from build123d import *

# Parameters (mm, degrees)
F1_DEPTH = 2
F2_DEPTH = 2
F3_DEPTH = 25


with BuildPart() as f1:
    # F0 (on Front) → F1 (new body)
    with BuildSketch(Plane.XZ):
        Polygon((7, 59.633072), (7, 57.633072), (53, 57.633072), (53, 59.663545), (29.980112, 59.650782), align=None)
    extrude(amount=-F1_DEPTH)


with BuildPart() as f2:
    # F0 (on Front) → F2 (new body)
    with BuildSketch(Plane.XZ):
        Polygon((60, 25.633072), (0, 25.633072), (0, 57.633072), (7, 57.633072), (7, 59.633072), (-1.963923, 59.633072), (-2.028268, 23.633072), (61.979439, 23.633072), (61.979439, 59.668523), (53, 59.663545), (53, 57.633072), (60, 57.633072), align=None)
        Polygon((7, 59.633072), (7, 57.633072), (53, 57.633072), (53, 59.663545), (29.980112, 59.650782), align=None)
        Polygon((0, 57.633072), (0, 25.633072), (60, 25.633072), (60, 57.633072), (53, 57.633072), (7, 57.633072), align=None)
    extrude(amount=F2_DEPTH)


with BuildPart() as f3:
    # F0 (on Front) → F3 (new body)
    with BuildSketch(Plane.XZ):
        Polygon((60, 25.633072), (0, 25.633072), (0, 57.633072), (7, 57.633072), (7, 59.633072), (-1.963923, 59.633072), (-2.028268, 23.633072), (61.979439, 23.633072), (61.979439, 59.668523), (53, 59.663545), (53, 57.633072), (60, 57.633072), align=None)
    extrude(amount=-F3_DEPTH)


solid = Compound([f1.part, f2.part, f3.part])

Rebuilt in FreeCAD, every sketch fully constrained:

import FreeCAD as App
import Part
import Sketcher

V = App.Vector
Q = App.Units.Quantity

doc = App.newDocument("Part")
body = doc.addObject("PartDesign::Body", "Body")

sketch1 = doc.addObject("Sketcher::SketchObject", "Sketch")
body.addObject(sketch1)
sketch1.AttachmentSupport = (doc.XZ_Plane, [""])
sketch1.MapMode = "FlatFace"
sketch1.addGeometry([
    Part.LineSegment(V(7, 59.6, 0), V(7, 57.6, 0)),
    Part.LineSegment(V(7, 57.6, 0), V(53, 57.6, 0)),
    Part.LineSegment(V(53, 57.6, 0), V(53, 59.7, 0)),
    Part.LineSegment(V(53, 59.7, 0), V(30, 59.7, 0)),
    Part.LineSegment(V(30, 59.7, 0), V(7, 59.6, 0)),
], False)
sketch1.addConstraint([
    Sketcher.Constraint("Coincident", 0, 2, 1, 1),
    Sketcher.Constraint("Coincident", 1, 2, 2, 1),
    Sketcher.Constraint("Coincident", 2, 2, 3, 1),
    Sketcher.Constraint("Coincident", 3, 2, 4, 1),
    Sketcher.Constraint("Coincident", 4, 2, 0, 1),
    Sketcher.Constraint("Vertical", 0),
    Sketcher.Constraint("Horizontal", 1),
    Sketcher.Constraint("Vertical", 2),
    Sketcher.Constraint("DistanceX", 1, 1, 1, 2, Q("46 mm")),
    Sketcher.Constraint("DistanceY", 0, 2, 0, 1, Q("2 mm")),
    Sketcher.Constraint("DistanceX", -1, 1, 0, 2, Q("7 mm")),
    Sketcher.Constraint("Distance", 3, Q("23.019892 mm")),
    Sketcher.Constraint("DistanceY", 2, 1, 2, 2, Q("2.030473 mm")),
    Sketcher.Constraint("DistanceY", 0, 2, 3, 2, Q("2.01771 mm")),
    Sketcher.Constraint("DistanceY", -1, 1, 0, 2, Q("57.633072 mm")),
])
pad1 = doc.addObject("PartDesign::Pad", "Pad")
body.addObject(pad1)
pad1.Profile = sketch1
pad1.Length = 2
pad1.Reversed = True
body2 = doc.addObject("PartDesign::Body", "Body001")

sketch2 = doc.addObject("Sketcher::SketchObject", "Sketch001")
body2.addObject(sketch2)
sketch2.AttachmentSupport = (doc.getObject("XZ_Plane001"), [""])
sketch2.MapMode = "FlatFace"
sketch2.addGeometry([
    Part.LineSegment(V(7, 60, 0), V(-2, 60, 0)),
    Part.LineSegment(V(-2, 60, 0), V(-2, 24, 0)),
    Part.LineSegment(V(-2, 24, 0), V(62, 24, 0)),
    Part.LineSegment(V(62, 24, 0), V(62, 60, 0)),
    Part.LineSegment(V(62, 60, 0), V(53, 60, 0)),
    Part.LineSegment(V(53, 60, 0), V(30, 60, 0)),
    Part.LineSegment(V(30, 60, 0), V(7, 60, 0)),
], False)
sketch2.addConstraint([
    Sketcher.Constraint("Coincident", 0, 2, 1, 1),
    Sketcher.Constraint("Coincident", 1, 2, 2, 1),
    Sketcher.Constraint("Coincident", 2, 2, 3, 1),
    Sketcher.Constraint("Coincident", 3, 2, 4, 1),
    Sketcher.Constraint("Coincident", 4, 2, 5, 1),
    Sketcher.Constraint("Coincident", 5, 2, 6, 1),
    Sketcher.Constraint("Coincident", 6, 2, 0, 1),
    Sketcher.Constraint("Horizontal", 0),
    Sketcher.Constraint("Horizontal", 2),
    Sketcher.Constraint("Vertical", 3),
    Sketcher.Constraint("Parallel", 4, 5),
    Sketcher.Constraint("DistanceX", -1, 1, 4, 2, Q("53 mm")),
    Sketcher.Constraint("DistanceX", -1, 1, 6, 2, Q("7 mm")),
    Sketcher.Constraint("DistanceY", 1, 2, 0, 2, Q("36 mm")),
    Sketcher.Constraint("DistanceY", 3, 1, 3, 2, Q("36.035451 mm")),
    Sketcher.Constraint("Distance", 4, Q("8.97944 mm")),
    Sketcher.Constraint("Distance", 5, Q("23.019892 mm")),
    Sketcher.Constraint("DistanceX", 0, 2, 0, 1, Q("8.963923 mm")),
    Sketcher.Constraint("DistanceX", 2, 1, 2, 2, Q("64.007707 mm")),
    Sketcher.Constraint("DistanceY", -1, 1, 1, 2, Q("23.633072 mm")),
    Sketcher.Constraint("DistanceY", 4, 2, 3, 2, Q("0.004978 mm")),
])
pad2 = doc.addObject("PartDesign::Pad", "Pad001")
body2.addObject(pad2)
pad2.Profile = sketch2
pad2.Length = 2
body3 = doc.addObject("PartDesign::Body", "Body002")

sketch3 = doc.addObject("Sketcher::SketchObject", "Sketch002")
body3.addObject(sketch3)
sketch3.AttachmentSupport = (doc.getObject("XZ_Plane002"), [""])
sketch3.MapMode = "FlatFace"
sketch3.addGeometry([
    Part.LineSegment(V(60, 25.6, 0), V(0, 25.6, 0)),
    Part.LineSegment(V(0, 25.6, 0), V(0, 57.6, 0)),
    Part.LineSegment(V(0, 57.6, 0), V(7, 57.6, 0)),
    Part.LineSegment(V(7, 57.6, 0), V(7, 59.6, 0)),
    Part.LineSegment(V(7, 59.6, 0), V(-2, 59.6, 0)),
    Part.LineSegment(V(-2, 59.6, 0), V(-2, 23.6, 0)),
    Part.LineSegment(V(-2, 23.6, 0), V(62, 23.6, 0)),
    Part.LineSegment(V(62, 23.6, 0), V(62, 59.7, 0)),
    Part.LineSegment(V(62, 59.7, 0), V(53, 59.7, 0)),
    Part.LineSegment(V(53, 59.7, 0), V(53, 57.6, 0)),
    Part.LineSegment(V(53, 57.6, 0), V(60, 57.6, 0)),
    Part.LineSegment(V(60, 57.6, 0), V(60, 25.6, 0)),
], False)
sketch3.addConstraint([
    Sketcher.Constraint("Coincident", 0, 2, 1, 1),
    Sketcher.Constraint("Coincident", 1, 2, 2, 1),
    Sketcher.Constraint("Coincident", 2, 2, 3, 1),
    Sketcher.Constraint("Coincident", 3, 2, 4, 1),
    Sketcher.Constraint("Coincident", 4, 2, 5, 1),
    Sketcher.Constraint("Coincident", 5, 2, 6, 1),
    Sketcher.Constraint("Coincident", 6, 2, 7, 1),
    Sketcher.Constraint("Coincident", 7, 2, 8, 1),
    Sketcher.Constraint("Coincident", 8, 2, 9, 1),
    Sketcher.Constraint("Coincident", 9, 2, 10, 1),
    Sketcher.Constraint("Coincident", 10, 2, 11, 1),
    Sketcher.Constraint("Coincident", 11, 2, 0, 1),
    Sketcher.Constraint("Horizontal", 0),
    Sketcher.Constraint("Vertical", 1),
    Sketcher.Constraint("Horizontal", 2),
    Sketcher.Constraint("Vertical", 3),
    Sketcher.Constraint("Horizontal", 4),
    Sketcher.Constraint("Horizontal", 6),
    Sketcher.Constraint("Vertical", 7),
    Sketcher.Constraint("Vertical", 9),
    Sketcher.Constraint("Horizontal", 10),
    Sketcher.Constraint("Vertical", 11),
    Sketcher.Constraint("PointOnObject", 0, 2, -2),
    Sketcher.Constraint("Horizontal", 2, 2, 9, 2),
    Sketcher.Constraint("Equal", 2, 10),
    Sketcher.Constraint("DistanceX", 0, 2, 0, 1, Q("60 mm")),
    Sketcher.Constraint("DistanceX", 2, 1, 2, 2, Q("7 mm")),
    Sketcher.Constraint("DistanceY", 1, 1, 1, 2, Q("32 mm")),
    Sketcher.Constraint("DistanceY", 3, 1, 3, 2, Q("2 mm")),
    Sketcher.Constraint("DistanceY", 5, 2, 0, 2, Q("2 mm")),
    Sketcher.Constraint("DistanceY", 7, 1, 7, 2, Q("36.035451 mm")),
    Sketcher.Constraint("Distance", 8, Q("8.97944 mm")),
    Sketcher.Constraint("DistanceX", 4, 2, 4, 1, Q("8.963923 mm")),
    Sketcher.Constraint("DistanceX", 6, 1, 6, 2, Q("64.007707 mm")),
    Sketcher.Constraint("DistanceY", 9, 2, 9, 1, Q("2.030473 mm")),
    Sketcher.Constraint("DistanceY", -1, 1, 0, 2, Q("25.633072 mm")),
])
pad3 = doc.addObject("PartDesign::Pad", "Pad002")
body3.addObject(pad3)
pad3.Profile = sketch3
pad3.Length = 25
pad3.Reversed = True

doc.recompute()
